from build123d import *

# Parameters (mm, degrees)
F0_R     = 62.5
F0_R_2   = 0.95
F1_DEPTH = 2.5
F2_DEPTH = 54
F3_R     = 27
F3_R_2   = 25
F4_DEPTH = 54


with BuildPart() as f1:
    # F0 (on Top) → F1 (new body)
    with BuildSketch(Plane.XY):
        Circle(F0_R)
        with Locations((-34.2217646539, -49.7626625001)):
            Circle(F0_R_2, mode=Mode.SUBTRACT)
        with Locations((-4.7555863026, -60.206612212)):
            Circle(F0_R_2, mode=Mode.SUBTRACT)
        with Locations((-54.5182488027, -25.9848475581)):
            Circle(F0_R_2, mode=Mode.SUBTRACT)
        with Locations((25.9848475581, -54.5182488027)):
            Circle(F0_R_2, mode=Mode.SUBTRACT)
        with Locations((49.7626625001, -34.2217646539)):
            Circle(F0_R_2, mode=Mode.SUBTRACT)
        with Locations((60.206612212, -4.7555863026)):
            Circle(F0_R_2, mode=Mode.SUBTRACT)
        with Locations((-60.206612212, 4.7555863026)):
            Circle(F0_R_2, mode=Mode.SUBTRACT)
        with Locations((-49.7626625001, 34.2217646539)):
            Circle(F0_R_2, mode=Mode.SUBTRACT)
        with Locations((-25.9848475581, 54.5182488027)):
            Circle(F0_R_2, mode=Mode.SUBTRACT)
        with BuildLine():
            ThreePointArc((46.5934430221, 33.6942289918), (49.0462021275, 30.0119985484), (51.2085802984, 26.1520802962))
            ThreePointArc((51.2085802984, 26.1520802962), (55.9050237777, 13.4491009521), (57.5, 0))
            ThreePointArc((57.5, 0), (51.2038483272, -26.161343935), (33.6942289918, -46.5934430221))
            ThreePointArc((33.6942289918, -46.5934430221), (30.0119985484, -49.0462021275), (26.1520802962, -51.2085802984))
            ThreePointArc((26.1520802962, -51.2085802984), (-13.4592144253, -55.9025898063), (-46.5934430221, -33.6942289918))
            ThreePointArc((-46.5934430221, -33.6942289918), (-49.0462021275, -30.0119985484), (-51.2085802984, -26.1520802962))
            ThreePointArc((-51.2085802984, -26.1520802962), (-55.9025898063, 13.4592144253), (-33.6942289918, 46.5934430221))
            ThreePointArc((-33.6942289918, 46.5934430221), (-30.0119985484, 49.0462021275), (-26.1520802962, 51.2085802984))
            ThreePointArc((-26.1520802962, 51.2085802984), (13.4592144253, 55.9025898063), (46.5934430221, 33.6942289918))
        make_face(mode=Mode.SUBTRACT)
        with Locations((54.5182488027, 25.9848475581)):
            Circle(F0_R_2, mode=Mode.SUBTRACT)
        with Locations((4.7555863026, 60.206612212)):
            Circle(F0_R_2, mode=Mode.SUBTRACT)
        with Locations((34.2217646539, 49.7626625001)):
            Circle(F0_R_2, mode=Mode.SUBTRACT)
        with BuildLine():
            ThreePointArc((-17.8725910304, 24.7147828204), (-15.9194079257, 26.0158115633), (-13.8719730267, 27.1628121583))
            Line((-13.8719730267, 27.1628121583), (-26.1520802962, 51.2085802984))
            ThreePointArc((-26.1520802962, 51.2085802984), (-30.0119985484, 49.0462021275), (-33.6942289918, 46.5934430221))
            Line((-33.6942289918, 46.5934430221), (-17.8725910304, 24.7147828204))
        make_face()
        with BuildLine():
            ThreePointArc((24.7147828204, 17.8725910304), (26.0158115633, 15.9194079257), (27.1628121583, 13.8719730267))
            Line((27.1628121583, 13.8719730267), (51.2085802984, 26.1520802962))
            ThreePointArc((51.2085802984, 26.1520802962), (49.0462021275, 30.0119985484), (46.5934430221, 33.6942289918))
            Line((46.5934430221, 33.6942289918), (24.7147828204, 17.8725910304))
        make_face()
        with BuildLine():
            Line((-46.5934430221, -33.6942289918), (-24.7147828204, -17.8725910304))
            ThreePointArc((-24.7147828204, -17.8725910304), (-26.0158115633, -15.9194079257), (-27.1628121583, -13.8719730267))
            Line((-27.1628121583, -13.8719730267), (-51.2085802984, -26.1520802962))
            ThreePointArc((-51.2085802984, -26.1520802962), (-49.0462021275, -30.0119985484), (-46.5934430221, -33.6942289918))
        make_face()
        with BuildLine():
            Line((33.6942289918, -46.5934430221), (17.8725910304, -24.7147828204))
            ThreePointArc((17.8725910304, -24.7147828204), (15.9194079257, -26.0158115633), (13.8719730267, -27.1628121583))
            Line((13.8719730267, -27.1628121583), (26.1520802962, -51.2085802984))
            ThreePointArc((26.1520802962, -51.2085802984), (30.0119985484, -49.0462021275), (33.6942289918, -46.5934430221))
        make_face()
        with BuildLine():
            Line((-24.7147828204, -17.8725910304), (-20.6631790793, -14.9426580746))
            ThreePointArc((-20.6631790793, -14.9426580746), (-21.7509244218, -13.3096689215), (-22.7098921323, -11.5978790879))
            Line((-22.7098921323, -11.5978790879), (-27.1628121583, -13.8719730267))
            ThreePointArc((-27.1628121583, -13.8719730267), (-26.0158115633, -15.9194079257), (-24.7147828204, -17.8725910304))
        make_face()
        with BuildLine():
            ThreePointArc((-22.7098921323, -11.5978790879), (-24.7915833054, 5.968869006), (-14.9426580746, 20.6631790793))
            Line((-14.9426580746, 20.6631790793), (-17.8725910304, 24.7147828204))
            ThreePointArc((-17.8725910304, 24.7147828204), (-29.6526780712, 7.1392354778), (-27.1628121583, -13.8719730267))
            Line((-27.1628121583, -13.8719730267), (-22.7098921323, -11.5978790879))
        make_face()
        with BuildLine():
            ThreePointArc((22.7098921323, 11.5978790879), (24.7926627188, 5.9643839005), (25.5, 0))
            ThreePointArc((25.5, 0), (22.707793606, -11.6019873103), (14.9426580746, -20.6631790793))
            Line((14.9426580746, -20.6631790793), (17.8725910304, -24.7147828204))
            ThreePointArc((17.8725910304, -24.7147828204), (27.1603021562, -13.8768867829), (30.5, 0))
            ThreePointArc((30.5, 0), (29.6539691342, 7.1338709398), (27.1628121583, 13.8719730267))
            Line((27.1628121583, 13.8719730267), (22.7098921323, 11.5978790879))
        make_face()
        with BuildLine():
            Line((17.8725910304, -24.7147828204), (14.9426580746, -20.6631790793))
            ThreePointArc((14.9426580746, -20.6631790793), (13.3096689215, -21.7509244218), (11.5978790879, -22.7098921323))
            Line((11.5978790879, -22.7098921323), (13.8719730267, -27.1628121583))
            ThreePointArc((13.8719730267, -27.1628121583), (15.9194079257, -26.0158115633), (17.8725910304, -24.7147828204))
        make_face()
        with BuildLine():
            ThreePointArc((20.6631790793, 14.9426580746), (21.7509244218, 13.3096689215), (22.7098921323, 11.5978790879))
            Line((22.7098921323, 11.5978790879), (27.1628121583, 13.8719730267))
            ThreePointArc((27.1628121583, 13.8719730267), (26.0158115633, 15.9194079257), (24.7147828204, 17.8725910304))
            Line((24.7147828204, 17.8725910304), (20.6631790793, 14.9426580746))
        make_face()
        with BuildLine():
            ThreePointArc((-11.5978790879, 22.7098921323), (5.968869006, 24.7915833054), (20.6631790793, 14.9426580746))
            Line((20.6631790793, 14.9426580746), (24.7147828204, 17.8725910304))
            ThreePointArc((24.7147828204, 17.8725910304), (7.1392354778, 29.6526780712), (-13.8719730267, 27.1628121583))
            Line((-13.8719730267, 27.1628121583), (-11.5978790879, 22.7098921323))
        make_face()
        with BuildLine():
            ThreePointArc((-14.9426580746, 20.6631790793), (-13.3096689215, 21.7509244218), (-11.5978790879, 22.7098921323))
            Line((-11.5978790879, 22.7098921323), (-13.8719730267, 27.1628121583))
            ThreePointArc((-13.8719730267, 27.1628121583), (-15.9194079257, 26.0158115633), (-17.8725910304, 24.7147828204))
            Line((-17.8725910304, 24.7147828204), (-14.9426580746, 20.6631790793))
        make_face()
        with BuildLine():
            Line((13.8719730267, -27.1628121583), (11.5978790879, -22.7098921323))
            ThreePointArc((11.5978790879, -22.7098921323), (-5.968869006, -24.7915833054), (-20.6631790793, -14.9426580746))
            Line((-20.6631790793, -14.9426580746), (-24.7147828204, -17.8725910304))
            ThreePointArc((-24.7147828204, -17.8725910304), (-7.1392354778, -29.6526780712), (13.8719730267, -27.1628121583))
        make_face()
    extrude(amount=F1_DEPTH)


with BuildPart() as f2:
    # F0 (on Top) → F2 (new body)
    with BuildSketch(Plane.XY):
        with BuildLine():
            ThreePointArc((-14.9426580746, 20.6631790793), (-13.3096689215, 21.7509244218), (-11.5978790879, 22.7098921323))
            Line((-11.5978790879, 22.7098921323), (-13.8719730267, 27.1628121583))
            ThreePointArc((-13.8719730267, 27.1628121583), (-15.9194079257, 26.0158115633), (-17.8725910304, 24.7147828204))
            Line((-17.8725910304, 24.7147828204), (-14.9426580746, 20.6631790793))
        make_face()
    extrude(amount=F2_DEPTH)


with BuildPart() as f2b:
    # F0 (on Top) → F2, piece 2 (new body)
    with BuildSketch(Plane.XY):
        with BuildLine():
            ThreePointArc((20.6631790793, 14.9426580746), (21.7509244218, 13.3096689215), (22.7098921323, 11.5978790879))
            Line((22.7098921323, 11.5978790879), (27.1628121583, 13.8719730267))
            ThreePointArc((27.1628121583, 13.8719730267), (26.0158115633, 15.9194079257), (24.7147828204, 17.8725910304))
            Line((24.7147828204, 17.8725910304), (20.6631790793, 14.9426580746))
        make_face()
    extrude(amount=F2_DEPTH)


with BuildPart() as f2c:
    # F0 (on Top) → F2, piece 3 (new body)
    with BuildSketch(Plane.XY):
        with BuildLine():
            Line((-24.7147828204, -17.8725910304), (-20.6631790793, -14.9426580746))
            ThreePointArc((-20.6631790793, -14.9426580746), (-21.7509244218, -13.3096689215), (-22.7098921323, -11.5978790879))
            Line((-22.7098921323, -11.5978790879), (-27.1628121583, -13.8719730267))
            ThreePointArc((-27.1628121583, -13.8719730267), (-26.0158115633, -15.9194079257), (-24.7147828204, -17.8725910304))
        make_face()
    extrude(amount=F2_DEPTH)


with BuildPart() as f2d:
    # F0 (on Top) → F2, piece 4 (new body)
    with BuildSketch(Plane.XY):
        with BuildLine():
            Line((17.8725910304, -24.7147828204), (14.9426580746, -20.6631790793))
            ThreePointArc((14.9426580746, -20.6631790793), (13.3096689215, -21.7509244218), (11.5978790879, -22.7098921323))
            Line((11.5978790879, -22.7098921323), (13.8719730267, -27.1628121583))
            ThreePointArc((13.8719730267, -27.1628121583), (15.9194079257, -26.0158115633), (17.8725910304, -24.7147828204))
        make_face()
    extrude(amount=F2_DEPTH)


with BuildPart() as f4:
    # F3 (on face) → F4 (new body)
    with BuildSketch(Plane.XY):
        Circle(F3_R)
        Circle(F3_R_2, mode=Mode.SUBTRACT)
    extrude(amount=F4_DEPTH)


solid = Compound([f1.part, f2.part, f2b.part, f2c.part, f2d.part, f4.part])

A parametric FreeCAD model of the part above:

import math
import FreeCAD as App
import Part
import Sketcher
from FreeCAD import Vector

doc = App.newDocument("Part")
params = doc.addObject("Spreadsheet::Sheet", "Params")
for row, (alias, value) in enumerate([
    ("sketch1_diameter", "125 mm"),
    ("sketch1_diameter2", "1.9 mm"),
    ("sketch1_radius", "25.5 mm"),
    ("sketch1_radius2", "57.5 mm"),
    ("sketch1_radius3", "30.5 mm"),
    ("pad1_length", "2.5 mm"),
    ("sketch2_radius", "25.5 mm"),
    ("sketch2_radius2", "30.5 mm"),
    ("pad2_length", "54 mm"),
    ("sketch3_radius", "25.5 mm"),
    ("sketch3_radius2", "30.5 mm"),
    ("pad3_length", "54 mm"),
    ("sketch4_radius", "25.5 mm"),
    ("sketch4_radius2", "30.5 mm"),
    ("pad4_length", "54 mm"),
    ("sketch5_radius", "25.5 mm"),
    ("sketch5_radius2", "30.5 mm"),
    ("pad5_length", "54 mm"),
    ("sketch6_diameter", "54 mm"),
    ("sketch6_diameter2", "50 mm"),
    ("pad6_length", "54 mm"),
], start=1):
    params.set(f"A{row}", alias)
    params.set(f"B{row}", "=" + value)
    params.setAlias(f"B{row}", alias)

body = doc.addObject("PartDesign::Body", "Body")

# Sketch on XY plane
sketch1 = body.newObject("Sketcher::SketchObject", "Sketch")
sketch1.AttachmentSupport = (doc.getObject("XY_Plane"), [""])
sketch1.MapMode = "FlatFace"
sketch1.addGeometry([
    Part.Circle(Vector(0, 0, 0), Vector(0, 0, 1), 62.5),  # 0
    Part.Circle(Vector(-34.221765, -49.762662, 0), Vector(0, 0, 1), 0.95),  # 1
    Part.Circle(Vector(-4.755586, -60.206612, 0), Vector(0, 0, 1), 0.95),  # 2
    Part.Circle(Vector(-54.518249, -25.984848, 0), Vector(0, 0, 1), 0.95),  # 3
    Part.ArcOfCircle(Part.Circle(Vector(0, 0, 0), Vector(0, 0, 1), 25.5), math.radians(125.872719), math.radians(207.053275)),  # 4
    Part.ArcOfCircle(Part.Circle(Vector(0, 0, 0), Vector(0, 0, 1), 25.5), math.radians(117.053275), math.radians(125.872719)),  # 5
    Part.ArcOfCircle(Part.Circle(Vector(0, 0, 0), Vector(0, 0, 1), 25.5), math.radians(35.872719), math.radians(117.053275)),  # 6
    Part.ArcOfCircle(Part.Circle(Vector(0, 0, 0), Vector(0, 0, 1), 25.5), math.radians(27.053275), math.radians(35.872719)),  # 7
    Part.ArcOfCircle(Part.Circle(Vector(0, 0, 0), Vector(0, 0, 1), 25.5), math.radians(0), math.radians(27.053275)),  # 8
    Part.ArcOfCircle(Part.Circle(Vector(0, 0, 0), Vector(0, 0, 1), 25.5), math.radians(-54.127281), math.radians(0)),  # 9
    Part.ArcOfCircle(Part.Circle(Vector(0, 0, 0), Vector(0, 0, 1), 25.5), math.radians(-62.946725), math.radians(-54.127281)),  # 10
    Part.ArcOfCircle(Part.Circle(Vector(0, 0, 0), Vector(0, 0, 1), 25.5), math.radians(-144.127281), math.radians(-62.946725)),  # 11
    Part.ArcOfCircle(Part.Circle(Vector(0, 0, 0), Vector(0, 0, 1), 25.5), math.radians(-152.946725), math.radians(-144.127281)),  # 12
    Part.LineSegment(Vector(13.871973, -27.162812, 0), Vector(26.15208, -51.20858, 0)),  # 13
    Part.ArcOfCircle(Part.Circle(Vector(0, 0, 0), Vector(0, 0, 1), 57.5), math.radians(-144.127281), math.radians(-62.946725)),  # 14
    Part.LineSegment(Vector(-46.593443, -33.694229, 0), Vector(-24.714783, -17.872591, 0)),  # 15
    Part.ArcOfCircle(Part.Circle(Vector(0, 0, 0), Vector(0, 0, 1), 30.5), math.radians(-144.127281), math.radians(-62.946725)),  # 16
    Part.Circle(Vector(25.984848, -54.518249, 0), Vector(0, 0, 1), 0.95),  # 17
    Part.Circle(Vector(49.762662, -34.221765, 0), Vector(0, 0, 1), 0.95),  # 18
    Part.ArcOfCircle(Part.Circle(Vector(0, 0, 0), Vector(0, 0, 1), 30.5), math.radians(0), math.radians(27.053275)),  # 19
    Part.LineSegment(Vector(27.162812, 13.871973, 0), Vector(51.20858, 26.15208, 0)),  # 20
    Part.ArcOfCircle(Part.Circle(Vector(0, 0, 0), Vector(0, 0, 1), 57.5), math.radians(0), math.radians(27.053275)),  # 21
    Part.ArcOfCircle(Part.Circle(Vector(0, 0, 0), Vector(0, 0, 1), 57.5), math.radians(-54.127281), math.radians(0)),  # 22
    Part.LineSegment(Vector(33.694229, -46.593443, 0), Vector(17.872591, -24.714783, 0)),  # 23
    Part.ArcOfCircle(Part.Circle(Vector(0, 0, 0), Vector(0, 0, 1), 30.5), math.radians(-54.127281), math.radians(0)),  # 24
    Part.Circle(Vector(60.206612, -4.755586, 0), Vector(0, 0, 1), 0.95),  # 25
    Part.Circle(Vector(-60.206612, 4.755586, 0), Vector(0, 0, 1), 0.95),  # 26
    Part.LineSegment(Vector(-33.694229, 46.593443, 0), Vector(-17.872591, 24.714783, 0)),  # 27
    Part.ArcOfCircle(Part.Circle(Vector(0, 0, 0), Vector(0, 0, 1), 30.5), math.radians(125.872719), math.radians(207.053275)),  # 28
    Part.LineSegment(Vector(-27.162812, -13.871973, 0), Vector(-51.20858, -26.15208, 0)),  # 29
    Part.ArcOfCircle(Part.Circle(Vector(0, 0, 0), Vector(0, 0, 1), 57.5), math.radians(125.872719), math.radians(207.053275)),  # 30
    Part.Circle(Vector(-49.762662, 34.221765, 0), Vector(0, 0, 1), 0.95),  # 31
    Part.Circle(Vector(-25.984848, 54.518249, 0), Vector(0, 0, 1), 0.95),  # 32
    Part.Circle(Vector(54.518249, 25.984848, 0), Vector(0, 0, 1), 0.95),  # 33
    Part.ArcOfCircle(Part.Circle(Vector(0, 0, 0), Vector(0, 0, 1), 30.5), math.radians(35.872719), math.radians(117.053275)),  # 34
    Part.LineSegment(Vector(-13.871973, 27.162812, 0), Vector(-26.15208, 51.20858, 0)),  # 35
    Part.ArcOfCircle(Part.Circle(Vector(0, 0, 0), Vector(0, 0, 1), 57.5), math.radians(35.872719), math.radians(117.053275)),  # 36
    Part.LineSegment(Vector(46.593443, 33.694229, 0), Vector(24.714783, 17.872591, 0)),  # 37
    Part.Circle(Vector(4.755586, 60.206612, 0), Vector(0, 0, 1), 0.95),  # 38
    Part.Circle(Vector(34.221765, 49.762662, 0), Vector(0, 0, 1), 0.95),  # 39
], False)
sketch1.addConstraint([
    Sketcher.Constraint("Tangent", 4, 1, 5, 2),
    Sketcher.Constraint("Tangent", 5, 1, 6, 2),
    Sketcher.Constraint("Tangent", 6, 1, 7, 2),
    Sketcher.Constraint("Tangent", 7, 1, 8, 2),
    Sketcher.Constraint("Tangent", 8, 1, 9, 2),
    Sketcher.Constraint("Tangent", 9, 1, 10, 2),
    Sketcher.Constraint("Tangent", 10, 1, 11, 2),
    Sketcher.Constraint("Tangent", 11, 1, 12, 2),
    Sketcher.Constraint("Tangent", 12, 1, 4, 2),
    Sketcher.Constraint("Coincident", 13, 2, 14, 2),
    Sketcher.Constraint("Coincident", 14, 1, 15, 1),
    Sketcher.Constraint("Coincident", 15, 2, 16, 1),
    Sketcher.Constraint("Coincident", 16, 2, 13, 1),
    Sketcher.Constraint("Coincident", 19, 2, 20, 1),
    Sketcher.Constraint("Coincident", 20, 2, 21, 2),
    Sketcher.Constraint("Tangent", 21, 1, 22, 2),
    Sketcher.Constraint("Coincident", 22, 1, 23, 1),
    Sketcher.Constraint("Coincident", 23, 2, 24, 1),
    Sketcher.Constraint("Tangent", 24, 2, 19, 1),
    Sketcher.Constraint("Coincident", 27, 2, 28, 1),
    Sketcher.Constraint("Coincident", 28, 2, 29, 1),
    Sketcher.Constraint("Coincident", 29, 2, 30, 2),
    Sketcher.Constraint("Coincident", 30, 1, 27, 1),
    Sketcher.Constraint("Coincident", 34, 2, 35, 1),
    Sketcher.Constraint("Coincident", 35, 2, 36, 2),
    Sketcher.Constraint("Coincident", 36, 1, 37, 1),
    Sketcher.Constraint("Coincident", 37, 2, 34, 1),
    Sketcher.Constraint("Coincident", 0, 3, -1, 1),
    Sketcher.Constraint("Coincident", 4, 3, -1, 1),
    Sketcher.Constraint("Coincident", 6, 3, -1, 1),
    Sketcher.Constraint("Coincident", 8, 3, -1, 1),
    Sketcher.Constraint("Coincident", 10, 3, -1, 1),
    Sketcher.Constraint("Coincident", 14, 3, -1, 1),
    Sketcher.Constraint("Coincident", 16, 3, -1, 1),
    Sketcher.Constraint("Coincident", 19, 3, -1, 1),
    Sketcher.Constraint("Coincident", 21, 3, -1, 1),
    Sketcher.Constraint("Coincident", 28, 3, -1, 1),
    Sketcher.Constraint("Coincident", 30, 3, -1, 1),
    Sketcher.Constraint("Coincident", 34, 3, -1, 1),
    Sketcher.Constraint("Coincident", 36, 3, -1, 1),
    Sketcher.Constraint("Equal", 1, 2),
    Sketcher.Constraint("Equal", 2, 3),
    Sketcher.Constraint("Equal", 3, 17),
    Sketcher.Constraint("Equal", 17, 18),
    Sketcher.Constraint("Equal", 16, 19),
    Sketcher.Constraint("Equal", 14, 21),
    Sketcher.Constraint("Equal", 21, 22),
    Sketcher.Constraint("Equal", 19, 24),
    Sketcher.Constraint("Equal", 18, 25),
    Sketcher.Constraint("Equal", 25, 26),
    Sketcher.Constraint("Equal", 24, 28),
    Sketcher.Constraint("Equal", 22, 30),
    Sketcher.Constraint("Equal", 26, 31),
    Sketcher.Constraint("Equal", 31, 32),
    Sketcher.Constraint("Equal", 32, 33),
    Sketcher.Constraint("Equal", 28, 34),
    Sketcher.Constraint("Equal", 30, 36),
    Sketcher.Constraint("Equal", 33, 38),
    Sketcher.Constraint("Equal", 38, 39),
    Sketcher.Constraint("Symmetric", 25, 3, 26, 3, -1, 1),
    Sketcher.Constraint("Symmetric", 18, 3, 31, 3, -1, 1),
    Sketcher.Constraint("Symmetric", 17, 3, 32, 3, -1, 1),
    Sketcher.Constraint("Symmetric", 3, 3, 33, 3, -1, 1),
    Sketcher.Constraint("Symmetric", 2, 3, 38, 3, -1, 1),
    Sketcher.Constraint("Symmetric", 1, 3, 39, 3, -1, 1),
    Sketcher.Constraint("PointOnObject", 8, 1, -1),
    Sketcher.Constraint("PointOnObject", 21, 1, -1),
    Sketcher.Constraint("PointOnObject", 24, 2, -1),
    Sketcher.Constraint("Perpendicular", 13, 20),
    Sketcher.Constraint("Perpendicular", 15, 23),
    Sketcher.Constraint("Parallel", 23, 27),
    Sketcher.Constraint("Parallel", 20, 29),
    Sketcher.Constraint("Perpendicular", 29, 35),
    Sketcher.Constraint("Perpendicular", 27, 37),
    Sketcher.Constraint("Diameter", 0, 125.0),
    Sketcher.Constraint("Diameter", 1, 1.9),
    Sketcher.Constraint("Radius", 4, 25.5),
    Sketcher.Constraint("Radius", 14, 57.5),
    Sketcher.Constraint("Radius", 16, 30.5),
    Sketcher.Constraint("DistanceX", 10, 1, 13, 2, 14.554201),
    Sketcher.Constraint("DistanceY", 13, 2, 9, 1, 30.545401),
    Sketcher.Constraint("DistanceY", 7, 1, 20, 2, 14.554201),
    Sketcher.Constraint("DistanceX", 3, 3, -1, 1, 54.518249),
    Sketcher.Constraint("DistanceY", 17, 3, -1, 1, 54.518249),
    Sketcher.Constraint("DistanceX", 4, 1, -1, 1, 14.942658),
    Sketcher.Constraint("DistanceX", 5, 1, -1, 1, 11.597879),
    Sketcher.Constraint("DistanceX", -1, 1, 6, 1, 20.663179),
    Sketcher.Constraint("DistanceY", -1, 1, 7, 1, 11.597879),
    Sketcher.Constraint("DistanceX", -1, 1, 9, 1, 14.942658),
    Sketcher.Constraint("DistanceX", 11, 1, -1, 1, 20.663179),
    Sketcher.Constraint("DistanceY", 12, 1, -1, 1, 11.597879),
    Sketcher.Constraint("DistanceY", 14, 1, -1, 1, 33.694229),
    Sketcher.Constraint("DistanceY", 15, 2, -1, 1, 17.872591),
    Sketcher.Constraint("DistanceX", -1, 1, 22, 1, 33.694229),
    Sketcher.Constraint("DistanceX", 27, 2, -1, 1, 17.872591),
    Sketcher.Constraint("DistanceX", 29, 2, -1, 1, 51.20858),
    Sketcher.Constraint("DistanceX", 35, 2, -1, 1, 26.15208),
    Sketcher.Constraint("DistanceY", -1, 1, 36, 1, 33.694229),
    Sketcher.Constraint("DistanceX", 1, 3, 2, 3, 29.466178),
    Sketcher.Constraint("DistanceY", 2, 3, 1, 3, 10.44395),
    Sketcher.Constraint("DistanceX", 18, 3, 25, 3, 10.44395),
    Sketcher.Constraint("DistanceY", 18, 3, 25, 3, 29.466178),
    Sketcher.Constraint("DistanceY", 2, 3, 13, 2, 8.998032),
    Sketcher.Constraint("DistanceY", 14, 1, 3, 3, 7.709381),
    Sketcher.Constraint("DistanceX", 14, 1, 1, 3, 12.371678),
    Sketcher.Constraint("DistanceX", 26, 3, 14, 1, 13.613169),
    Sketcher.Constraint("DistanceY", 16, 2, 10, 1, 4.45292),
    Sketcher.Constraint("DistanceX", 17, 3, 22, 1, 7.709381),
    Sketcher.Constraint("DistanceY", 22, 1, 18, 3, 12.371678),
])
sketch1.setExpression("Constraints[74]", "Params.sketch1_diameter")
sketch1.setExpression("Constraints[75]", "Params.sketch1_diameter2")
sketch1.setExpression("Constraints[76]", "Params.sketch1_radius")
sketch1.setExpression("Constraints[77]", "Params.sketch1_radius2")
sketch1.setExpression("Constraints[78]", "Params.sketch1_radius3")
pad1 = body.newObject("PartDesign::Pad", "Pad")
pad1.Profile = sketch1
pad1.setExpression("Length", "Params.pad1_length")
body2 = doc.addObject("PartDesign::Body", "Body001")

# Sketch on XY plane
sketch2 = body2.newObject("Sketcher::SketchObject", "Sketch001")
sketch2.AttachmentSupport = (doc.getObject("XY_Plane001"), [""])
sketch2.MapMode = "FlatFace"
sketch2.addGeometry([
    Part.ArcOfCircle(Part.Circle(Vector(0, 0, 0), Vector(0, 0, 1), 25.5), math.radians(117.053275), math.radians(125.872719)),
    Part.LineSegment(Vector(-11.597879, 22.709892, 0), Vector(-13.871973, 27.162812, 0)),
    Part.ArcOfCircle(Part.Circle(Vector(0, 0, 0), Vector(0, 0, 1), 30.5), math.radians(117.053275), math.radians(125.872719)),
    Part.LineSegment(Vector(-17.872591, 24.714783, 0), Vector(-14.942658, 20.663179, 0)),
], False)
sketch2.addConstraint([
    Sketcher.Constraint("Coincident", 0, 1, 1, 1),
    Sketcher.Constraint("Coincident", 1, 2, 2, 1),
    Sketcher.Constraint("Coincident", 2, 2, 3, 1),
    Sketcher.Constraint("Coincident", 3, 2, 0, 2),
    Sketcher.Constraint("Coincident", 0, 3, -1, 1),
    Sketcher.Constraint("Coincident", 2, 3, -1, 1),
    Sketcher.Constraint("Radius", 0, 25.5),
    Sketcher.Constraint("Radius", 2, 30.5),
    Sketcher.Constraint("DistanceX", 0, 1, -1, 1, 11.597879),
    Sketcher.Constraint("DistanceX", 2, 2, -1, 1, 17.872591),
    Sketcher.Constraint("DistanceX", 3, 2, -1, 1, 14.942658),
    Sketcher.Constraint("DistanceY", 0, 1, 1, 2, 4.45292),
])
sketch2.setExpression("Constraints[6]", "Params.sketch2_radius")
sketch2.setExpression("Constraints[7]", "Params.sketch2_radius2")
pad2 = body2.newObject("PartDesign::Pad", "Pad001")
pad2.Profile = sketch2
pad2.setExpression("Length", "Params.pad2_length")
body3 = doc.addObject("PartDesign::Body", "Body002")

# Sketch on XY plane
sketch3 = body3.newObject("Sketcher::SketchObject", "Sketch002")
sketch3.AttachmentSupport = (doc.getObject("XY_Plane002"), [""])
sketch3.MapMode = "FlatFace"
sketch3.addGeometry([
    Part.ArcOfCircle(Part.Circle(Vector(0, 0, 0), Vector(0, 0, 1), 25.5), math.radians(27.053275), math.radians(35.872719)),
    Part.LineSegment(Vector(22.709892, 11.597879, 0), Vector(27.162812, 13.871973, 0)),
    Part.ArcOfCircle(Part.Circle(Vector(0, 0, 0), Vector(0, 0, 1), 30.5), math.radians(27.053275), math.radians(35.872719)),
    Part.LineSegment(Vector(24.714783, 17.872591, 0), Vector(20.663179, 14.942658, 0)),
], False)
sketch3.addConstraint([
    Sketcher.Constraint("Coincident", 0, 1, 1, 1),
    Sketcher.Constraint("Coincident", 1, 2, 2, 1),
    Sketcher.Constraint("Coincident", 2, 2, 3, 1),
    Sketcher.Constraint("Coincident", 3, 2, 0, 2),
    Sketcher.Constraint("Coincident", 0, 3, -1, 1),
    Sketcher.Constraint("Coincident", 2, 3, -1, 1),
    Sketcher.Constraint("Radius", 0, 25.5),
    Sketcher.Constraint("Radius", 2, 30.5),
    Sketcher.Constraint("DistanceY", -1, 1, 0, 1, 11.597879),
    Sketcher.Constraint("DistanceY", -1, 1, 2, 2, 17.872591),
    Sketcher.Constraint("DistanceX", -1, 1, 3, 2, 20.663179),
    Sketcher.Constraint("DistanceX", 0, 1, 1, 2, 4.45292),
])
sketch3.setExpression("Constraints[6]", "Params.sketch3_radius")
sketch3.setExpression("Constraints[7]", "Params.sketch3_radius2")
pad3 = body3.newObject("PartDesign::Pad", "Pad002")
pad3.Profile = sketch3
pad3.setExpression("Length", "Params.pad3_length")
body4 = doc.addObject("PartDesign::Body", "Body003")

# Sketch on XY plane
sketch4 = body4.newObject("Sketcher::SketchObject", "Sketch003")
sketch4.AttachmentSupport = (doc.getObject("XY_Plane003"), [""])
sketch4.MapMode = "FlatFace"
sketch4.addGeometry([
    Part.LineSegment(Vector(-24.714783, -17.872591, 0), Vector(-20.663179, -14.942658, 0)),
    Part.ArcOfCircle(Part.Circle(Vector(0, 0, 0), Vector(0, 0, 1), 25.5), math.radians(-152.946725), math.radians(-144.127281)),
    Part.LineSegment(Vector(-22.709892, -11.597879, 0), Vector(-27.162812, -13.871973, 0)),
    Part.ArcOfCircle(Part.Circle(Vector(0, 0, 0), Vector(0, 0, 1), 30.5), math.radians(-152.946725), math.radians(-144.127281)),
], False)
sketch4.addConstraint([
    Sketcher.Constraint("Coincident", 0, 2, 1, 2),
    Sketcher.Constraint("Coincident", 1, 1, 2, 1),
    Sketcher.Constraint("Coincident", 2, 2, 3, 1),
    Sketcher.Constraint("Coincident", 3, 2, 0, 1),
    Sketcher.Constraint("Coincident", 1, 3, -1, 1),
    Sketcher.Constraint("Coincident", 3, 3, -1, 1),
    Sketcher.Constraint("Radius", 1, 25.5),
    Sketcher.Constraint("Radius", 3, 30.5),
    Sketcher.Constraint("DistanceX", 0, 2, -1, 1, 20.663179),
    Sketcher.Constraint("DistanceY", 1, 1, -1, 1, 11.597879),
    Sketcher.Constraint("DistanceY", 3, 2, -1, 1, 17.872591),
    Sketcher.Constraint("DistanceX", 2, 2, 1, 1, 4.45292),
])
sketch4.setExpression("Constraints[6]", "Params.sketch4_radius")
sketch4.setExpression("Constraints[7]", "Params.sketch4_radius2")
pad4 = body4.newObject("PartDesign::Pad", "Pad003")
pad4.Profile = sketch4
pad4.setExpression("Length", "Params.pad4_length")
body5 = doc.addObject("PartDesign::Body", "Body004")

# Sketch on XY plane
sketch5 = body5.newObject("Sketcher::SketchObject", "Sketch004")
sketch5.AttachmentSupport = (doc.getObject("XY_Plane004"), [""])
sketch5.MapMode = "FlatFace"
sketch5.addGeometry([
    Part.LineSegment(Vector(17.872591, -24.714783, 0), Vector(14.942658, -20.663179, 0)),
    Part.ArcOfCircle(Part.Circle(Vector(0, 0, 0), Vector(0, 0, 1), 25.5), math.radians(-62.946725), math.radians(-54.127281)),
    Part.LineSegment(Vector(11.597879, -22.709892, 0), Vector(13.871973, -27.162812, 0)),
    Part.ArcOfCircle(Part.Circle(Vector(0, 0, 0), Vector(0, 0, 1), 30.5), math.radians(-62.946725), math.radians(-54.127281)),
], False)
sketch5.addConstraint([
    Sketcher.Constraint("Coincident", 0, 2, 1, 2),
    Sketcher.Constraint("Coincident", 1, 1, 2, 1),
    Sketcher.Constraint("Coincident", 2, 2, 3, 1),
    Sketcher.Constraint("Coincident", 3, 2, 0, 1),
    Sketcher.Constraint("Coincident", 1, 3, -1, 1),
    Sketcher.Constraint("Coincident", 3, 3, -1, 1),
    Sketcher.Constraint("Radius", 1, 25.5),
    Sketcher.Constraint("Radius", 3, 30.5),
    Sketcher.Constraint("DistanceX", -1, 1, 0, 2, 14.942658),
    Sketcher.Constraint("DistanceX", -1, 1, 1, 1, 11.597879),
    Sketcher.Constraint("DistanceX", -1, 1, 3, 2, 17.872591),
    Sketcher.Constraint("DistanceY", 2, 2, 1, 1, 4.45292),
])
sketch5.setExpression("Constraints[6]", "Params.sketch5_radius")
sketch5.setExpression("Constraints[7]", "Params.sketch5_radius2")
pad5 = body5.newObject("PartDesign::Pad", "Pad004")
pad5.Profile = sketch5
pad5.setExpression("Length", "Params.pad5_length")
body6 = doc.addObject("PartDesign::Body", "Body005")

# Sketch on XY plane
sketch6 = body6.newObject("Sketcher::SketchObject", "Sketch005")
sketch6.AttachmentSupport = (doc.getObject("XY_Plane005"), [""])
sketch6.MapMode = "FlatFace"
sketch6.addGeometry([
    Part.Circle(Vector(0, 0, 0), Vector(0, 0, 1), 27),
    Part.Circle(Vector(0, 0, 0), Vector(0, 0, 1), 25),
], False)
sketch6.addConstraint([
    Sketcher.Constraint("Coincident", 0, 3, -1, 1),
    Sketcher.Constraint("Coincident", 1, 3, -1, 1),
    Sketcher.Constraint("Diameter", 0, 54.0),
    Sketcher.Constraint("Diameter", 1, 50.0),
])
sketch6.setExpression("Constraints[2]", "Params.sketch6_diameter")
sketch6.setExpression("Constraints[3]", "Params.sketch6_diameter2")
pad6 = body6.newObject("PartDesign::Pad", "Pad005")
pad6.Profile = sketch6
pad6.setExpression("Length", "Params.pad6_length")

doc.recompute()
